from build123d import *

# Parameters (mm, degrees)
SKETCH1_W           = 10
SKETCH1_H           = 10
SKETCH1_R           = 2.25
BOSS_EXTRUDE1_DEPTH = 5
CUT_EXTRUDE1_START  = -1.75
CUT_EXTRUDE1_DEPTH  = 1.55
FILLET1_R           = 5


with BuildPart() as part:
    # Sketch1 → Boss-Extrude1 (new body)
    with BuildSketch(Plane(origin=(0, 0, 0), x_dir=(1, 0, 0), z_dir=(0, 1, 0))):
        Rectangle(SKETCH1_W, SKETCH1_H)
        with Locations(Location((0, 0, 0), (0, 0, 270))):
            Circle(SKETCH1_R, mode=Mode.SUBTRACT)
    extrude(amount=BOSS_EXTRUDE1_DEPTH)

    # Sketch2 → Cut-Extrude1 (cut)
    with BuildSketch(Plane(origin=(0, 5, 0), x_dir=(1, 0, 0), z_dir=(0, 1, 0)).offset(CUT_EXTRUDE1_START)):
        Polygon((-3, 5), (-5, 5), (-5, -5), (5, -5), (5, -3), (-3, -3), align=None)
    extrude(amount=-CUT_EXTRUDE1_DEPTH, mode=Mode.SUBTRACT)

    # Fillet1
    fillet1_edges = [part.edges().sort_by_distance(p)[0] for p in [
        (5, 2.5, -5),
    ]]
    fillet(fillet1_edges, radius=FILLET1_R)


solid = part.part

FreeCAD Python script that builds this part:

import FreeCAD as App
import Part
import Sketcher
from FreeCAD import Vector
Q = App.Units.Quantity


def edges_at(feature, points):
    """Names of the edges that pass closest to the given points."""
    edges = feature.Shape.Edges
    near = lambda p: min(range(len(edges)), key=lambda i: edges[i].distToShape(Part.Vertex(*p))[0])
    return sorted({f"Edge{near(p) + 1}" for p in points})

doc = App.newDocument("Part")
body = doc.addObject("PartDesign::Body", "Body")

# Sketch on XZ plane
sketch1 = body.newObject("Sketcher::SketchObject", "Sketch")
sketch1.AttachmentSupport = (doc.getObject("XZ_Plane"), [""])
sketch1.MapMode = "FlatFace"
sketch1.addGeometry(Part.LineSegment(Vector(-5, -5, 0), Vector(-5, 5, 0)), False)
sketch1.addGeometry(Part.LineSegment(Vector(-5, 5, 0), Vector(5, 5, 0)), False)
sketch1.addGeometry(Part.LineSegment(Vector(5, 5, 0), Vector(5, -5, 0)), False)
sketch1.addGeometry(Part.LineSegment(Vector(5, -5, 0), Vector(-5, -5, 0)), False)
sketch1.addGeometry(Part.Circle(Vector(0, 0, 0), Vector(0, 0, 1), 2.2), False)
sketch1.addConstraint(Sketcher.Constraint("Coincident", 0, 2, 1, 1))
sketch1.addConstraint(Sketcher.Constraint("Coincident", 1, 2, 2, 1))
sketch1.addConstraint(Sketcher.Constraint("Coincident", 2, 2, 3, 1))
sketch1.addConstraint(Sketcher.Constraint("Coincident", 3, 2, 0, 1))
sketch1.addConstraint(Sketcher.Constraint("Vertical", 0))
sketch1.addConstraint(Sketcher.Constraint("Horizontal", 1))
sketch1.addConstraint(Sketcher.Constraint("Vertical", 2))
sketch1.addConstraint(Sketcher.Constraint("Horizontal", 3))
sketch1.addConstraint(Sketcher.Constraint("Coincident", 4, 3, -1, 1))
sketch1.addConstraint(Sketcher.Constraint("Symmetric", 0, 2, 2, 2, -1, 1))
sketch1.addConstraint(Sketcher.Constraint("Equal", 3, 0))
sketch1.addConstraint(Sketcher.Constraint("Diameter", 4, Q("4.5 mm")))
sketch1.addConstraint(Sketcher.Constraint("DistanceX", 1, 1, 1, 2, Q("10 mm")))
pad1 = body.newObject("PartDesign::Pad", "Pad")
pad1.Profile = sketch1
pad1.Length = 5
pad1.Reversed = True

# Sketch on XZ plane
sketch2 = body.newObject("Sketcher::SketchObject", "Sketch001")
sketch2.AttachmentSupport = (doc.getObject("XZ_Plane"), [""])
sketch2.MapMode = "FlatFace"
sketch2.AttachmentOffset = App.Placement(Vector(0, 0, -3.25), App.Rotation())
sketch2.addGeometry(Part.LineSegment(Vector(-3, -5, 0), Vector(-5, -5, 0)), False)
sketch2.addGeometry(Part.LineSegment(Vector(-5, -5, 0), Vector(-5, 5, 0)), False)
sketch2.addGeometry(Part.LineSegment(Vector(-5, 5, 0), Vector(5, 5, 0)), False)
sketch2.addGeometry(Part.LineSegment(Vector(5, 5, 0), Vector(5, 3, 0)), False)
sketch2.addGeometry(Part.LineSegment(Vector(5, 3, 0), Vector(-3, 3, 0)), False)
sketch2.addGeometry(Part.LineSegment(Vector(-3, 3, 0), Vector(-3, -5, 0)), False)
sketch2.addConstraint(Sketcher.Constraint("Coincident", 0, 2, 1, 1))
sketch2.addConstraint(Sketcher.Constraint("Coincident", 1, 2, 2, 1))
sketch2.addConstraint(Sketcher.Constraint("Coincident", 2, 2, 3, 1))
sketch2.addConstraint(Sketcher.Constraint("Coincident", 3, 2, 4, 1))
sketch2.addConstraint(Sketcher.Constraint("Coincident", 4, 2, 5, 1))
sketch2.addConstraint(Sketcher.Constraint("Coincident", 5, 2, 0, 1))
sketch2.addConstraint(Sketcher.Constraint("Horizontal", 0))
sketch2.addConstraint(Sketcher.Constraint("Vertical", 1))
sketch2.addConstraint(Sketcher.Constraint("Horizontal", 2))
sketch2.addConstraint(Sketcher.Constraint("Vertical", 3))
sketch2.addConstraint(Sketcher.Constraint("Horizontal", 4))
sketch2.addConstraint(Sketcher.Constraint("Vertical", 5))
sketch2.addConstraint(Sketcher.Constraint("Symmetric", 0, 2, 2, 2, -1, 1))
sketch2.addConstraint(Sketcher.Constraint("Equal", 2, 1))
sketch2.addConstraint(Sketcher.Constraint("Equal", 0, 3))
sketch2.addConstraint(Sketcher.Constraint("DistanceX", 0, 2, 0, 1, Q("2 mm")))
sketch2.addConstraint(Sketcher.Constraint("DistanceX", 2, 1, 2, 2, Q("10 mm")))
pocket1 = body.newObject("PartDesign::Pocket", "Pocket")
pocket1.Profile = sketch2
pocket1.Length = 1.55
pocket1.Reversed = True
doc.recompute()

fillet = body.newObject("PartDesign::Fillet", "Fillet")
fillet.Base = (pocket1, edges_at(pocket1, [(5, 2.5, -5)]))
fillet.Radius = 5

doc.recompute()
